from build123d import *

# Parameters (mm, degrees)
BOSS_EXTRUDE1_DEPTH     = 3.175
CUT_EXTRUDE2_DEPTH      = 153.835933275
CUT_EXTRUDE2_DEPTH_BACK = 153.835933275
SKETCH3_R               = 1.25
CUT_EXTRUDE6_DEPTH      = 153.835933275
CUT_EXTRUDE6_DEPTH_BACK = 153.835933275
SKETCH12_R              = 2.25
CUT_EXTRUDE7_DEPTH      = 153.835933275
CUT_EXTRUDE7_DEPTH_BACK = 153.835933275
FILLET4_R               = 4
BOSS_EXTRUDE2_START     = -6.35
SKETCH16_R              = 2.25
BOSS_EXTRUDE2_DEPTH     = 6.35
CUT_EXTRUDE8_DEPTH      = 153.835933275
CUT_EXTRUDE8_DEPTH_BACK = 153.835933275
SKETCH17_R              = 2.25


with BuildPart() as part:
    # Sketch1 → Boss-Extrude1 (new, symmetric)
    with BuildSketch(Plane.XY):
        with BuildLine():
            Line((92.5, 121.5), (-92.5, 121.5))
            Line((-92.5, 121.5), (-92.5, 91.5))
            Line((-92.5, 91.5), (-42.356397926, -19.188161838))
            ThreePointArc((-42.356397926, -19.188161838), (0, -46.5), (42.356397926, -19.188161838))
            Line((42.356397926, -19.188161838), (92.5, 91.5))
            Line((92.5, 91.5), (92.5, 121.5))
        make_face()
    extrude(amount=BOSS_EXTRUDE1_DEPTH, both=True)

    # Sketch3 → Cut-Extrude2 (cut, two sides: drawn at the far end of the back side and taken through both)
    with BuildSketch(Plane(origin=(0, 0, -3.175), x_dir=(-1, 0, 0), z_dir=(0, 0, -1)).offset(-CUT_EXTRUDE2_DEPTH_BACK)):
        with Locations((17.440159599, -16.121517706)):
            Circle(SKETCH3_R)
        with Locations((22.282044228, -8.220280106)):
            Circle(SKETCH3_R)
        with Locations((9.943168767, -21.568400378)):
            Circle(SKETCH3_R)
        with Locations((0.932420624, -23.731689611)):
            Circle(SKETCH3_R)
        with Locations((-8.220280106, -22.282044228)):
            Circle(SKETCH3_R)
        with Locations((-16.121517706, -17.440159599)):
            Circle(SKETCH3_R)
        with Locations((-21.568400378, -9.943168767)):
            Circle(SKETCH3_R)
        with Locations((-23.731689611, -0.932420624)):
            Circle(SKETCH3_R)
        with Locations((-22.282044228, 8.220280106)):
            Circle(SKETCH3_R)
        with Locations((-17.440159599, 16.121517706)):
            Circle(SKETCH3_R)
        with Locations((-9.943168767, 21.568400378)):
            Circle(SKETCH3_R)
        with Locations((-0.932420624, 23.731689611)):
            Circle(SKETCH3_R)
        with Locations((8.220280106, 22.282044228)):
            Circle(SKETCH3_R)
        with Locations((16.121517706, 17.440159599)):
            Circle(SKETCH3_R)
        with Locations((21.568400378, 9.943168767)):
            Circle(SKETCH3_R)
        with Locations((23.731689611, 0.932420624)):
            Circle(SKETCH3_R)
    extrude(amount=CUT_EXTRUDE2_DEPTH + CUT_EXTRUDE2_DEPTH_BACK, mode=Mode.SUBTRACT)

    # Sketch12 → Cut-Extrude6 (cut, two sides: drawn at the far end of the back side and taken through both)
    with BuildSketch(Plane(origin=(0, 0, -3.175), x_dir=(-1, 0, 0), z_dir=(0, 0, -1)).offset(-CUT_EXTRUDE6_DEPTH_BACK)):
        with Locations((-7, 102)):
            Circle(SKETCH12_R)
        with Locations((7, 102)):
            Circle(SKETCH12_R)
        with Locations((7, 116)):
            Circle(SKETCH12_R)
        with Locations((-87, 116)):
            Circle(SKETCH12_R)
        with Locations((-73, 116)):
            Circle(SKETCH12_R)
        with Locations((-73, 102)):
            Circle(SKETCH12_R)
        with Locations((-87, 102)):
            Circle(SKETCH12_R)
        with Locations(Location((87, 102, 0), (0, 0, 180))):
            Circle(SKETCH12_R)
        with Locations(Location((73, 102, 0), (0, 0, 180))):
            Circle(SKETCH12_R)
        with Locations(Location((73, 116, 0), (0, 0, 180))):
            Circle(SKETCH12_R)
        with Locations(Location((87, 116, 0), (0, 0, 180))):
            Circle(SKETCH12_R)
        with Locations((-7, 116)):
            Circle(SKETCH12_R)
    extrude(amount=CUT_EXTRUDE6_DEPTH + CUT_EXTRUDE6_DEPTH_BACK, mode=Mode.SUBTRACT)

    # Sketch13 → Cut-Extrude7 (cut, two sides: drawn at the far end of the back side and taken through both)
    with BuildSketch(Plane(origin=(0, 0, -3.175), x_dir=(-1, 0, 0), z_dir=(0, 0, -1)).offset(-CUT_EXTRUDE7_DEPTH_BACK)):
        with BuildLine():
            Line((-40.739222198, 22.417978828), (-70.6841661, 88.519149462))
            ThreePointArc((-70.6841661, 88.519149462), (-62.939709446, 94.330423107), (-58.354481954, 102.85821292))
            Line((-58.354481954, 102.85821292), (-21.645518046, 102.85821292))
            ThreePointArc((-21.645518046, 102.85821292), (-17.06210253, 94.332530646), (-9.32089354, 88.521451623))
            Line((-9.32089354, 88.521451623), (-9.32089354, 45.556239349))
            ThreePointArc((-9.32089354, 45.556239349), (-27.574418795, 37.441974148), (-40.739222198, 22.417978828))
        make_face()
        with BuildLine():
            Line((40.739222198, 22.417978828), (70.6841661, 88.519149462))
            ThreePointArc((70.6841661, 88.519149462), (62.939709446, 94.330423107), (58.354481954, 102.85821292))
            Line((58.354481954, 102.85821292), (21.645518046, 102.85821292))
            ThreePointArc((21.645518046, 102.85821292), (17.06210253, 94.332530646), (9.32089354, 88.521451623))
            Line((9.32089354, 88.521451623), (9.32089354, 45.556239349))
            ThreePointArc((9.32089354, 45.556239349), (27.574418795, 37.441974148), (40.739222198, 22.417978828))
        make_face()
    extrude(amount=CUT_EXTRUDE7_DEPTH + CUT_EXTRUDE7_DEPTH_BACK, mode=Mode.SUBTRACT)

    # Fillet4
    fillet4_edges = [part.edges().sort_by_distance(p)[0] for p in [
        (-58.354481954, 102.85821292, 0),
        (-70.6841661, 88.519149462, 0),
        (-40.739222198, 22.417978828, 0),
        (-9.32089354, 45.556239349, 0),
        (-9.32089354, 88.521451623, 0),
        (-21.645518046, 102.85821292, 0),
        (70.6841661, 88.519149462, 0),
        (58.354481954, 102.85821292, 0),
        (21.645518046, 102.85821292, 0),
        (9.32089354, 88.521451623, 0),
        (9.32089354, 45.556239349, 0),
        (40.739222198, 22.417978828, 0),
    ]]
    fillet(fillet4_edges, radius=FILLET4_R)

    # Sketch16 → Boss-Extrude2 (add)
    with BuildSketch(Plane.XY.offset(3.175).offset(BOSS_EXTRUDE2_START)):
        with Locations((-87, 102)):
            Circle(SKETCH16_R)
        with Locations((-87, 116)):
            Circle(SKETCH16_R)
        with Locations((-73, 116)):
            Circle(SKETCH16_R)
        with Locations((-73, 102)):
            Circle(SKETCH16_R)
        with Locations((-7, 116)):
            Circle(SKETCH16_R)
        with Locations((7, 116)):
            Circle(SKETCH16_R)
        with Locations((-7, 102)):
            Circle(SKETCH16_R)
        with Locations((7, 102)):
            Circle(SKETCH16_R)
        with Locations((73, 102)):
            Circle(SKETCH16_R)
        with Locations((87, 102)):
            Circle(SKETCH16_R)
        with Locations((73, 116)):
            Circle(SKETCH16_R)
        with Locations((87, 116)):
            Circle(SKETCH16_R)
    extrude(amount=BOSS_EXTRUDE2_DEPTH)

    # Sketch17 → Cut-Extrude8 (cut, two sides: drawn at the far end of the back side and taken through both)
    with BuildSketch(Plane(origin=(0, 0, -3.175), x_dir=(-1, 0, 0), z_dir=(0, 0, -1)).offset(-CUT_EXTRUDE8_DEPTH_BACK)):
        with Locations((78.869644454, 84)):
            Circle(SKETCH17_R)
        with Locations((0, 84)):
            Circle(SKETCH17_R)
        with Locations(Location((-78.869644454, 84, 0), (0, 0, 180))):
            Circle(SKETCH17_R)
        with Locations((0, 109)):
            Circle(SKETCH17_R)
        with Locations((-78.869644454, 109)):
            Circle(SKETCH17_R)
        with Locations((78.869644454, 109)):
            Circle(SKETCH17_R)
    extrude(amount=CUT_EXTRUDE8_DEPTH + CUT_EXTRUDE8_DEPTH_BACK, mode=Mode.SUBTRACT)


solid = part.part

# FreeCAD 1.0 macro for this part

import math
import FreeCAD as App
import Part
import Sketcher
from FreeCAD import Vector


def edges_at(feature, points):
    """Names of the edges that pass closest to the given points."""
    edges = feature.Shape.Edges
    near = lambda p: min(range(len(edges)), key=lambda i: edges[i].distToShape(Part.Vertex(*p))[0])
    return sorted({f"Edge{near(p) + 1}" for p in points})

doc = App.newDocument("Part")
body = doc.addObject("PartDesign::Body", "Body")

sketch1 = body.newObject("Sketcher::SketchObject", "Sketch")
sketch1.AttachmentSupport = (doc.getObject("XY_Plane"), [""])
sketch1.MapMode = "FlatFace"
sketch1.addGeometry(Part.LineSegment(Vector(92.5, 121.5, 0), Vector(-92.5, 121.5, 0)), False)
sketch1.addGeometry(Part.LineSegment(Vector(-92.5, 121.5, 0), Vector(-92.5, 91.5, 0)), False)
sketch1.addGeometry(Part.LineSegment(Vector(-92.5, 91.5, 0), Vector(-42.356398, -19.188162, 0)), False)
sketch1.addGeometry(Part.ArcOfCircle(Part.Circle(Vector(0, 0, 0), Vector(0, 0, 1), 46.5), math.radians(-155.628673), math.radians(-24.371327)), False)
sketch1.addGeometry(Part.LineSegment(Vector(42.356398, -19.188162, 0), Vector(92.5, 91.5, 0)), False)
sketch1.addGeometry(Part.LineSegment(Vector(92.5, 91.5, 0), Vector(92.5, 121.5, 0)), False)
sketch1.addConstraint(Sketcher.Constraint("Coincident", 0, 2, 1, 1))
sketch1.addConstraint(Sketcher.Constraint("Coincident", 1, 2, 2, 1))
sketch1.addConstraint(Sketcher.Constraint("Tangent", 2, 2, 3, 1))
sketch1.addConstraint(Sketcher.Constraint("Tangent", 3, 2, 4, 1))
sketch1.addConstraint(Sketcher.Constraint("Coincident", 4, 2, 5, 1))
sketch1.addConstraint(Sketcher.Constraint("Coincident", 5, 2, 0, 1))
sketch1.addConstraint(Sketcher.Constraint("Horizontal", 0))
sketch1.addConstraint(Sketcher.Constraint("Vertical", 1))
sketch1.addConstraint(Sketcher.Constraint("Vertical", 5))
sketch1.addConstraint(Sketcher.Constraint("Coincident", 3, 3, -1, 1))
sketch1.addConstraint(Sketcher.Constraint("Symmetric", 1, 2, 4, 2, -2))
sketch1.addConstraint(Sketcher.Constraint("Radius", 3, 46.5))
sketch1.addConstraint(Sketcher.Constraint("DistanceX", 0, 2, 0, 1, 185.0))
sketch1.addConstraint(Sketcher.Constraint("DistanceY", 1, 2, 1, 1, 30.0))
sketch1.addConstraint(Sketcher.Constraint("DistanceY", -1, 1, 0, 2, 121.5))
pad1 = body.newObject("PartDesign::Pad", "Pad")
pad1.Profile = sketch1
pad1.Length = 6.35
pad1.Midplane = True

sketch2 = body.newObject("Sketcher::SketchObject", "Sketch001")
sketch2.AttachmentSupport = (doc.getObject("XY_Plane"), [""])
sketch2.MapMode = "FlatFace"
sketch2.AttachmentOffset = App.Placement(Vector(0, 0, -3.175), App.Rotation())
sketch2.addGeometry(Part.Circle(Vector(-17.44016, -16.121518, 0), Vector(0, 0, 1), 1.25), False)
sketch2.addGeometry(Part.Circle(Vector(-22.282044, -8.22028, 0), Vector(0, 0, 1), 1.25), False)
sketch2.addGeometry(Part.Circle(Vector(-9.943169, -21.5684, 0), Vector(0, 0, 1), 1.25), False)
sketch2.addGeometry(Part.Circle(Vector(-0.932421, -23.73169, 0), Vector(0, 0, 1), 1.25), False)
sketch2.addGeometry(Part.Circle(Vector(8.22028, -22.282044, 0), Vector(0, 0, 1), 1.25), False)
sketch2.addGeometry(Part.Circle(Vector(16.121518, -17.44016, 0), Vector(0, 0, 1), 1.25), False)
sketch2.addGeometry(Part.Circle(Vector(21.5684, -9.943169, 0), Vector(0, 0, 1), 1.25), False)
sketch2.addGeometry(Part.Circle(Vector(23.73169, -0.932421, 0), Vector(0, 0, 1), 1.25), False)
sketch2.addGeometry(Part.Circle(Vector(22.282044, 8.22028, 0), Vector(0, 0, 1), 1.25), False)
sketch2.addGeometry(Part.Circle(Vector(17.44016, 16.121518, 0), Vector(0, 0, 1), 1.25), False)
sketch2.addGeometry(Part.Circle(Vector(9.943169, 21.5684, 0), Vector(0, 0, 1), 1.25), False)
sketch2.addGeometry(Part.Circle(Vector(0.932421, 23.73169, 0), Vector(0, 0, 1), 1.25), False)
sketch2.addGeometry(Part.Circle(Vector(-8.22028, 22.282044, 0), Vector(0, 0, 1), 1.25), False)
sketch2.addGeometry(Part.Circle(Vector(-16.121518, 17.44016, 0), Vector(0, 0, 1), 1.25), False)
sketch2.addGeometry(Part.Circle(Vector(-21.5684, 9.943169, 0), Vector(0, 0, 1), 1.25), False)
sketch2.addGeometry(Part.Circle(Vector(-23.73169, 0.932421, 0), Vector(0, 0, 1), 1.25), False)
sketch2.addConstraint(Sketcher.Constraint("Equal", 0, 1))
sketch2.addConstraint(Sketcher.Constraint("Equal", 1, 2))
sketch2.addConstraint(Sketcher.Constraint("Equal", 2, 3))
sketch2.addConstraint(Sketcher.Constraint("Equal", 3, 4))
sketch2.addConstraint(Sketcher.Constraint("Equal", 4, 5))
sketch2.addConstraint(Sketcher.Constraint("Equal", 5, 6))
sketch2.addConstraint(Sketcher.Constraint("Equal", 6, 7))
sketch2.addConstraint(Sketcher.Constraint("Equal", 7, 8))
sketch2.addConstraint(Sketcher.Constraint("Equal", 8, 9))
sketch2.addConstraint(Sketcher.Constraint("Equal", 9, 10))
sketch2.addConstraint(Sketcher.Constraint("Equal", 10, 11))
sketch2.addConstraint(Sketcher.Constraint("Equal", 11, 12))
sketch2.addConstraint(Sketcher.Constraint("Equal", 12, 13))
sketch2.addConstraint(Sketcher.Constraint("Equal", 13, 14))
sketch2.addConstraint(Sketcher.Constraint("Equal", 14, 15))
sketch2.addConstraint(Sketcher.Constraint("Symmetric", 1, 3, 8, 3, -1, 1))
sketch2.addConstraint(Sketcher.Constraint("Symmetric", 0, 3, 9, 3, -1, 1))
sketch2.addConstraint(Sketcher.Constraint("Symmetric", 2, 3, 10, 3, -1, 1))
sketch2.addConstraint(Sketcher.Constraint("Symmetric", 3, 3, 11, 3, -1, 1))
sketch2.addConstraint(Sketcher.Constraint("Symmetric", 4, 3, 12, 3, -1, 1))
sketch2.addConstraint(Sketcher.Constraint("Symmetric", 5, 3, 13, 3, -1, 1))
sketch2.addConstraint(Sketcher.Constraint("Symmetric", 6, 3, 14, 3, -1, 1))
sketch2.addConstraint(Sketcher.Constraint("Symmetric", 7, 3, 15, 3, -1, 1))
sketch2.addConstraint(Sketcher.Constraint("Diameter", 0, 2.5))
sketch2.addConstraint(Sketcher.Constraint("DistanceY", 2, 3, -1, 1, 21.5684))
sketch2.addConstraint(Sketcher.Constraint("DistanceX", -1, 1, 6, 3, 21.5684))
sketch2.addConstraint(Sketcher.Constraint("DistanceX", 3, 3, 4, 3, 9.152701))
sketch2.addConstraint(Sketcher.Constraint("DistanceY", 7, 3, 8, 3, 9.152701))
sketch2.addConstraint(Sketcher.Constraint("DistanceX", 0, 3, -1, 1, 17.44016))
sketch2.addConstraint(Sketcher.Constraint("DistanceY", 1, 3, -1, 1, 8.22028))
sketch2.addConstraint(Sketcher.Constraint("DistanceX", 2, 3, -1, 1, 9.943169))
sketch2.addConstraint(Sketcher.Constraint("DistanceX", 3, 3, -1, 1, 0.932421))
sketch2.addConstraint(Sketcher.Constraint("DistanceY", 3, 3, -1, 1, 23.73169))
sketch2.addConstraint(Sketcher.Constraint("DistanceY", 5, 3, -1, 1, 17.44016))
sketch2.addConstraint(Sketcher.Constraint("DistanceY", 6, 3, -1, 1, 9.943169))
sketch2.addConstraint(Sketcher.Constraint("DistanceX", -1, 1, 7, 3, 23.73169))
sketch2.addConstraint(Sketcher.Constraint("DistanceY", 3, 3, 0, 3, 7.610172))
sketch2.addConstraint(Sketcher.Constraint("DistanceX", 3, 3, 5, 3, 17.053938))
sketch2.addConstraint(Sketcher.Constraint("DistanceX", 1, 3, 5, 3, 38.403562))
sketch2.addConstraint(Sketcher.Constraint("DistanceY", 4, 3, 9, 3, 38.403562))
pocket1 = body.newObject("PartDesign::Pocket", "Pocket")
pocket1.Profile = sketch2
pocket1.Type = "ThroughAll"
pocket1.Midplane = True

sketch3 = body.newObject("Sketcher::SketchObject", "Sketch002")
sketch3.AttachmentSupport = (doc.getObject("XY_Plane"), [""])
sketch3.MapMode = "FlatFace"
sketch3.AttachmentOffset = App.Placement(Vector(0, 0, -3.175), App.Rotation())
sketch3.addGeometry(Part.Circle(Vector(7, 102, 0), Vector(0, 0, 1), 2.25), False)
sketch3.addGeometry(Part.Circle(Vector(-7, 102, 0), Vector(0, 0, 1), 2.25), False)
sketch3.addGeometry(Part.Circle(Vector(-7, 116, 0), Vector(0, 0, 1), 2.25), False)
sketch3.addGeometry(Part.Circle(Vector(87, 116, 0), Vector(0, 0, 1), 2.25), False)
sketch3.addGeometry(Part.Circle(Vector(73, 116, 0), Vector(0, 0, 1), 2.25), False)
sketch3.addGeometry(Part.Circle(Vector(73, 102, 0), Vector(0, 0, 1), 2.25), False)
sketch3.addGeometry(Part.Circle(Vector(87, 102, 0), Vector(0, 0, 1), 2.25), False)
sketch3.addGeometry(Part.Circle(Vector(-87, 102, 0), Vector(0, 0, 1), 2.25), False)
sketch3.addGeometry(Part.Circle(Vector(-73, 102, 0), Vector(0, 0, 1), 2.25), False)
sketch3.addGeometry(Part.Circle(Vector(-73, 116, 0), Vector(0, 0, 1), 2.25), False)
sketch3.addGeometry(Part.Circle(Vector(-87, 116, 0), Vector(0, 0, 1), 2.25), False)
sketch3.addGeometry(Part.Circle(Vector(7, 116, 0), Vector(0, 0, 1), 2.25), False)
sketch3.addConstraint(Sketcher.Constraint("Equal", 0, 1))
sketch3.addConstraint(Sketcher.Constraint("Equal", 1, 2))
sketch3.addConstraint(Sketcher.Constraint("Equal", 2, 3))
sketch3.addConstraint(Sketcher.Constraint("Equal", 3, 4))
sketch3.addConstraint(Sketcher.Constraint("Equal", 4, 5))
sketch3.addConstraint(Sketcher.Constraint("Equal", 5, 6))
sketch3.addConstraint(Sketcher.Constraint("Equal", 6, 7))
sketch3.addConstraint(Sketcher.Constraint("Equal", 7, 8))
sketch3.addConstraint(Sketcher.Constraint("Equal", 8, 9))
sketch3.addConstraint(Sketcher.Constraint("Equal", 9, 10))
sketch3.addConstraint(Sketcher.Constraint("Equal", 10, 11))
sketch3.addConstraint(Sketcher.Constraint("Symmetric", 0, 3, 1, 3, -2))
sketch3.addConstraint(Sketcher.Constraint("Symmetric", 6, 3, 7, 3, -2))
sketch3.addConstraint(Sketcher.Constraint("Symmetric", 5, 3, 8, 3, -2))
sketch3.addConstraint(Sketcher.Constraint("Symmetric", 4, 3, 9, 3, -2))
sketch3.addConstraint(Sketcher.Constraint("Symmetric", 3, 3, 10, 3, -2))
sketch3.addConstraint(Sketcher.Constraint("Symmetric", 2, 3, 11, 3, -2))
sketch3.addConstraint(Sketcher.Constraint("Horizontal", 2, 3, 3, 3))
sketch3.addConstraint(Sketcher.Constraint("Horizontal", 3, 3, 4, 3))
sketch3.addConstraint(Sketcher.Constraint("Horizontal", 1, 3, 5, 3))
sketch3.addConstraint(Sketcher.Constraint("Horizontal", 5, 3, 6, 3))
sketch3.addConstraint(Sketcher.Constraint("Vertical", 1, 3, 2, 3))
sketch3.addConstraint(Sketcher.Constraint("Vertical", 4, 3, 5, 3))
sketch3.addConstraint(Sketcher.Constraint("Vertical", 3, 3, 6, 3))
sketch3.addConstraint(Sketcher.Constraint("Diameter", 0, 4.5))
sketch3.addConstraint(Sketcher.Constraint("DistanceX", -1, 1, 0, 3, 7.0))
sketch3.addConstraint(Sketcher.Constraint("DistanceY", -1, 1, 0, 3, 102.0))
sketch3.addConstraint(Sketcher.Constraint("DistanceY", -1, 1, 2, 3, 116.0))
sketch3.addConstraint(Sketcher.Constraint("DistanceX", -1, 1, 3, 3, 87.0))
sketch3.addConstraint(Sketcher.Constraint("DistanceX", -1, 1, 4, 3, 73.0))
pocket2 = body.newObject("PartDesign::Pocket", "Pocket001")
pocket2.Profile = sketch3
pocket2.Type = "ThroughAll"
pocket2.Midplane = True

sketch4 = body.newObject("Sketcher::SketchObject", "Sketch003")
sketch4.AttachmentSupport = (doc.getObject("XY_Plane"), [""])
sketch4.MapMode = "FlatFace"
sketch4.AttachmentOffset = App.Placement(Vector(0, 0, -3.175), App.Rotation())
sketch4.addGeometry(Part.LineSegment(Vector(70.684166, 88.519149, 0), Vector(40.739222, 22.417979, 0)), False)
sketch4.addGeometry(Part.ArcOfCircle(Part.Circle(Vector(0, 0, 0), Vector(0, 0, 1), 46.5), math.radians(28.823109), math.radians(78.436765)), False)
sketch4.addGeometry(Part.LineSegment(Vector(9.320894, 45.556239, 0), Vector(9.320894, 88.521452, 0)), False)
sketch4.addGeometry(Part.ArcOfCircle(Part.Circle(Vector(0, 109, 0), Vector(0, 0, 1), 22.5), math.radians(-65.527154), math.radians(-15.840976)), False)
sketch4.addGeometry(Part.LineSegment(Vector(21.645518, 102.858213, 0), Vector(58.354482, 102.858213, 0)), False)
sketch4.addGeometry(Part.ArcOfCircle(Part.Circle(Vector(80, 109, 0), Vector(0, 0, 1), 22.5), math.radians(-164.159024), math.radians(-114.45869)), False)
sketch4.addGeometry(Part.LineSegment(Vector(-40.739222, 22.417979, 0), Vector(-70.684166, 88.519149, 0)), False)
sketch4.addGeometry(Part.ArcOfCircle(Part.Circle(Vector(-80, 109, 0), Vector(0, 0, 1), 22.5), math.radians(-65.54131), math.radians(-15.840976)), False)
sketch4.addGeometry(Part.LineSegment(Vector(-58.354482, 102.858213, 0), Vector(-21.645518, 102.858213, 0)), False)
sketch4.addGeometry(Part.ArcOfCircle(Part.Circle(Vector(0, 109, 0), Vector(0, 0, 1), 22.5), math.radians(-164.159024), math.radians(-114.472846)), False)
sketch4.addGeometry(Part.LineSegment(Vector(-9.320894, 88.521452, 0), Vector(-9.320894, 45.556239, 0)), False)
sketch4.addGeometry(Part.ArcOfCircle(Part.Circle(Vector(0, 0, 0), Vector(0, 0, 1), 46.5), math.radians(101.563235), math.radians(151.176891)), False)
sketch4.addConstraint(Sketcher.Constraint("Coincident", 0, 2, 1, 1))
sketch4.addConstraint(Sketcher.Constraint("Coincident", 1, 2, 2, 1))
sketch4.addConstraint(Sketcher.Constraint("Coincident", 2, 2, 3, 1))
sketch4.addConstraint(Sketcher.Constraint("Coincident", 3, 2, 4, 1))
sketch4.addConstraint(Sketcher.Constraint("Coincident", 4, 2, 5, 1))
sketch4.addConstraint(Sketcher.Constraint("Coincident", 5, 2, 0, 1))
sketch4.addConstraint(Sketcher.Constraint("Coincident", 6, 2, 7, 1))
sketch4.addConstraint(Sketcher.Constraint("Coincident", 7, 2, 8, 1))
sketch4.addConstraint(Sketcher.Constraint("Coincident", 8, 2, 9, 1))
sketch4.addConstraint(Sketcher.Constraint("Coincident", 9, 2, 10, 1))
sketch4.addConstraint(Sketcher.Constraint("Coincident", 10, 2, 11, 1))
sketch4.addConstraint(Sketcher.Constraint("Coincident", 11, 2, 6, 1))
sketch4.addConstraint(Sketcher.Constraint("Vertical", 2))
sketch4.addConstraint(Sketcher.Constraint("Horizontal", 4))
sketch4.addConstraint(Sketcher.Constraint("Horizontal", 8))
sketch4.addConstraint(Sketcher.Constraint("Vertical", 10))
sketch4.addConstraint(Sketcher.Constraint("Coincident", 1, 3, -1, 1))
sketch4.addConstraint(Sketcher.Constraint("Coincident", 11, 3, -1, 1))
sketch4.addConstraint(Sketcher.Constraint("Coincident", 9, 3, 3, 3))
sketch4.addConstraint(Sketcher.Constraint("Equal", 3, 5))
sketch4.addConstraint(Sketcher.Constraint("Equal", 5, 7))
sketch4.addConstraint(Sketcher.Constraint("Equal", 7, 9))
sketch4.addConstraint(Sketcher.Constraint("Equal", 1, 11))
sketch4.addConstraint(Sketcher.Constraint("Symmetric", 5, 3, 7, 3, -2))
sketch4.addConstraint(Sketcher.Constraint("Symmetric", 3, 2, 8, 2, -2))
sketch4.addConstraint(Sketcher.Constraint("Horizontal", 3, 3, 5, 3))
sketch4.addConstraint(Sketcher.Constraint("Horizontal", 5, 2, 6, 2))
sketch4.addConstraint(Sketcher.Constraint("Horizontal", 2, 2, 9, 2))
sketch4.addConstraint(Sketcher.Constraint("Horizontal", 0, 2, 11, 2))
sketch4.addConstraint(Sketcher.Constraint("Radius", 1, 46.5))
sketch4.addConstraint(Sketcher.Constraint("Radius", 3, 22.5))
sketch4.addConstraint(Sketcher.Constraint("DistanceY", -1, 1, 3, 3, 109.0))
sketch4.addConstraint(Sketcher.Constraint("DistanceX", -1, 1, 5, 3, 80.0))
sketch4.addConstraint(Sketcher.Constraint("DistanceX", 4, 1, 4, 2, 36.708964))
sketch4.addConstraint(Sketcher.Constraint("DistanceY", 2, 1, 2, 2, 42.965212))
sketch4.addConstraint(Sketcher.Constraint("DistanceY", -1, 1, 0, 2, 22.417979))
sketch4.addConstraint(Sketcher.Constraint("DistanceY", -1, 1, 5, 2, 88.519149))
pocket3 = body.newObject("PartDesign::Pocket", "Pocket002")
pocket3.Profile = sketch4
pocket3.Type = "ThroughAll"
pocket3.Midplane = True
doc.recompute()

fillet = body.newObject("PartDesign::Fillet", "Fillet")
fillet.Base = (pocket3, edges_at(pocket3, [
    (-58.354, 102.858, 0),
    (-70.684, 88.519, 0),
    (-40.739, 22.418, 0),
    (-9.321, 45.556, 0),
    (-9.321, 88.521, 0),
    (-21.646, 102.858, 0),
    (70.684, 88.519, 0),
    (58.354, 102.858, 0),
    (21.646, 102.858, 0),
    (9.321, 88.521, 0),
    (9.321, 45.556, 0),
    (40.739, 22.418, 0),
]))
fillet.Radius = 4

sketch5 = body.newObject("Sketcher::SketchObject", "Sketch004")
sketch5.AttachmentSupport = (doc.getObject("XY_Plane"), [""])
sketch5.MapMode = "FlatFace"
sketch5.AttachmentOffset = App.Placement(Vector(0, 0, -3.175), App.Rotation())
sketch5.addGeometry(Part.Circle(Vector(-87, 102, 0), Vector(0, 0, 1), 2.25), False)
sketch5.addGeometry(Part.Circle(Vector(-87, 116, 0), Vector(0, 0, 1), 2.25), False)
sketch5.addGeometry(Part.Circle(Vector(-73, 116, 0), Vector(0, 0, 1), 2.25), False)
sketch5.addGeometry(Part.Circle(Vector(-73, 102, 0), Vector(0, 0, 1), 2.25), False)
sketch5.addGeometry(Part.Circle(Vector(-7, 116, 0), Vector(0, 0, 1), 2.25), False)
sketch5.addGeometry(Part.Circle(Vector(7, 116, 0), Vector(0, 0, 1), 2.25), False)
sketch5.addGeometry(Part.Circle(Vector(-7, 102, 0), Vector(0, 0, 1), 2.25), False)
sketch5.addGeometry(Part.Circle(Vector(7, 102, 0), Vector(0, 0, 1), 2.25), False)
sketch5.addGeometry(Part.Circle(Vector(73, 102, 0), Vector(0, 0, 1), 2.25), False)
sketch5.addGeometry(Part.Circle(Vector(87, 102, 0), Vector(0, 0, 1), 2.25), False)
sketch5.addGeometry(Part.Circle(Vector(73, 116, 0), Vector(0, 0, 1), 2.25), False)
sketch5.addGeometry(Part.Circle(Vector(87, 116, 0), Vector(0, 0, 1), 2.25), False)
sketch5.addConstraint(Sketcher.Constraint("Equal", 0, 1))
sketch5.addConstraint(Sketcher.Constraint("Equal", 1, 2))
sketch5.addConstraint(Sketcher.Constraint("Equal", 2, 3))
sketch5.addConstraint(Sketcher.Constraint("Equal", 3, 4))
sketch5.addConstraint(Sketcher.Constraint("Equal", 4, 5))
sketch5.addConstraint(Sketcher.Constraint("Equal", 5, 6))
sketch5.addConstraint(Sketcher.Constraint("Equal", 6, 7))
sketch5.addConstraint(Sketcher.Constraint("Equal", 7, 8))
sketch5.addConstraint(Sketcher.Constraint("Equal", 8, 9))
sketch5.addConstraint(Sketcher.Constraint("Equal", 9, 10))
sketch5.addConstraint(Sketcher.Constraint("Equal", 10, 11))
sketch5.addConstraint(Sketcher.Constraint("Symmetric", 4, 3, 5, 3, -2))
sketch5.addConstraint(Sketcher.Constraint("Symmetric", 6, 3, 7, 3, -2))
sketch5.addConstraint(Sketcher.Constraint("Symmetric", 3, 3, 8, 3, -2))
sketch5.addConstraint(Sketcher.Constraint("Symmetric", 0, 3, 9, 3, -2))
sketch5.addConstraint(Sketcher.Constraint("Symmetric", 2, 3, 10, 3, -2))
sketch5.addConstraint(Sketcher.Constraint("Symmetric", 1, 3, 11, 3, -2))
sketch5.addConstraint(Sketcher.Constraint("Horizontal", 1, 3, 2, 3))
sketch5.addConstraint(Sketcher.Constraint("Horizontal", 0, 3, 3, 3))
sketch5.addConstraint(Sketcher.Constraint("Horizontal", 2, 3, 4, 3))
sketch5.addConstraint(Sketcher.Constraint("Horizontal", 3, 3, 6, 3))
sketch5.addConstraint(Sketcher.Constraint("Vertical", 0, 3, 1, 3))
sketch5.addConstraint(Sketcher.Constraint("Vertical", 2, 3, 3, 3))
sketch5.addConstraint(Sketcher.Constraint("Vertical", 4, 3, 6, 3))
sketch5.addConstraint(Sketcher.Constraint("Diameter", 0, 4.5))
sketch5.addConstraint(Sketcher.Constraint("DistanceX", 0, 3, -1, 1, 87.0))
sketch5.addConstraint(Sketcher.Constraint("DistanceY", -1, 1, 0, 3, 102.0))
sketch5.addConstraint(Sketcher.Constraint("DistanceY", -1, 1, 1, 3, 116.0))
sketch5.addConstraint(Sketcher.Constraint("DistanceX", 2, 3, -1, 1, 73.0))
sketch5.addConstraint(Sketcher.Constraint("DistanceX", 4, 3, -1, 1, 7.0))
pad2 = body.newObject("PartDesign::Pad", "Pad001")
pad2.Profile = sketch5
pad2.Length = 6.35

sketch6 = body.newObject("Sketcher::SketchObject", "Sketch005")
sketch6.AttachmentSupport = (doc.getObject("XY_Plane"), [""])
sketch6.MapMode = "FlatFace"
sketch6.AttachmentOffset = App.Placement(Vector(0, 0, -3.175), App.Rotation())
sketch6.addGeometry(Part.Circle(Vector(-78.869644, 84, 0), Vector(0, 0, 1), 2.25), False)
sketch6.addGeometry(Part.Circle(Vector(0, 84, 0), Vector(0, 0, 1), 2.25), False)
sketch6.addGeometry(Part.Circle(Vector(78.869644, 84, 0), Vector(0, 0, 1), 2.25), False)
sketch6.addGeometry(Part.Circle(Vector(0, 109, 0), Vector(0, 0, 1), 2.25), False)
sketch6.addGeometry(Part.Circle(Vector(78.869644, 109, 0), Vector(0, 0, 1), 2.25), False)
sketch6.addGeometry(Part.Circle(Vector(-78.869644, 109, 0), Vector(0, 0, 1), 2.25), False)
sketch6.addConstraint(Sketcher.Constraint("Equal", 0, 1))
sketch6.addConstraint(Sketcher.Constraint("Equal", 1, 2))
sketch6.addConstraint(Sketcher.Constraint("Equal", 2, 3))
sketch6.addConstraint(Sketcher.Constraint("Equal", 3, 4))
sketch6.addConstraint(Sketcher.Constraint("Equal", 4, 5))
sketch6.addConstraint(Sketcher.Constraint("Symmetric", 0, 3, 2, 3, -2))
sketch6.addConstraint(Sketcher.Constraint("Symmetric", 4, 3, 5, 3, -2))
sketch6.addConstraint(Sketcher.Constraint("PointOnObject", 1, 3, -2))
sketch6.addConstraint(Sketcher.Constraint("PointOnObject", 3, 3, -2))
sketch6.addConstraint(Sketcher.Constraint("Horizontal", 0, 3, 1, 3))
sketch6.addConstraint(Sketcher.Constraint("Horizontal", 3, 3, 4, 3))
sketch6.addConstraint(Sketcher.Constraint("Vertical", 2, 3, 4, 3))
sketch6.addConstraint(Sketcher.Constraint("Diameter", 0, 4.5))
sketch6.addConstraint(Sketcher.Constraint("DistanceY", -1, 1, 0, 3, 84.0))
sketch6.addConstraint(Sketcher.Constraint("DistanceY", -1, 1, 3, 3, 109.0))
sketch6.addConstraint(Sketcher.Constraint("DistanceX", 0, 3, 2, 3, 157.739289))
pocket4 = body.newObject("PartDesign::Pocket", "Pocket003")
pocket4.Profile = sketch6
pocket4.Type = "ThroughAll"
pocket4.Midplane = True

doc.recompute()
